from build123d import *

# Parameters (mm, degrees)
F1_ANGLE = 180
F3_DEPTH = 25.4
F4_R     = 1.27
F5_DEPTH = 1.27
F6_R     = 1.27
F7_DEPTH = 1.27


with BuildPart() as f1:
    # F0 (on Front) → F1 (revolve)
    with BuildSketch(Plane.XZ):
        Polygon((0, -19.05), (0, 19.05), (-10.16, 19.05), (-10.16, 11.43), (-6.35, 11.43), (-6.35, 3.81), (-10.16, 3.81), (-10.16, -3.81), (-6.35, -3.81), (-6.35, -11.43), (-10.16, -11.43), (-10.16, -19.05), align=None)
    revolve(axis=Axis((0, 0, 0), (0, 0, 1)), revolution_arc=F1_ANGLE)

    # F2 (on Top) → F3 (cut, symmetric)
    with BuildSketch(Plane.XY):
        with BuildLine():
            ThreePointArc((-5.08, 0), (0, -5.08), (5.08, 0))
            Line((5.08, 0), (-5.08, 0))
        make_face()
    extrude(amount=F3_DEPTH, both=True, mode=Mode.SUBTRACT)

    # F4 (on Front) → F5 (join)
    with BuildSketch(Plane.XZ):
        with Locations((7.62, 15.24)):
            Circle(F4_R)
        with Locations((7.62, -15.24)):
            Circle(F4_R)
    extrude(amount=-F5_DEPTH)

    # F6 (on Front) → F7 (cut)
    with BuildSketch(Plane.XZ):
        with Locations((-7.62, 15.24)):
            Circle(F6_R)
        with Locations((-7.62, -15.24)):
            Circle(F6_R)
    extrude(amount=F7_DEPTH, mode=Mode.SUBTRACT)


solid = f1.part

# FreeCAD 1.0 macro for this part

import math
import FreeCAD as App
import Part
import Sketcher
Q = App.Units.Quantity


def add_polygon(sketch, points):
    """Adds a closed chain of lines whose ends are joined by coincident constraints."""
    first, n = sketch.GeometryCount, len(points)
    for a, b in zip(points, points[1:] + points[:1]):
        sketch.addGeometry(Part.LineSegment(App.Vector(*a, 0), App.Vector(*b, 0)), False)
    for i in range(n):
        sketch.addConstraint(Sketcher.Constraint("Coincident", first + i, 2, first + (i + 1) % n, 1))

doc = App.newDocument("Part")
body = doc.addObject("PartDesign::Body", "Body")

sketch1 = body.newObject("Sketcher::SketchObject", "Sketch")
sketch1.AttachmentSupport = (doc.getObject("XZ_Plane"), [""])
sketch1.MapMode = "FlatFace"
add_polygon(sketch1, [(0, -19.1), (0, 19.1), (-10.2, 19.1), (-10.2, 11.4), (-6.3, 11.4), (-6.3, 3.8), (-10.2, 3.8), (-10.2, -3.8), (-6.3, -3.8), (-6.3, -11.4), (-10.2, -11.4), (-10.2, -19.1)])
sketch1.addConstraint(Sketcher.Constraint("Vertical", 0))
sketch1.addConstraint(Sketcher.Constraint("Horizontal", 1))
sketch1.addConstraint(Sketcher.Constraint("Vertical", 2))
sketch1.addConstraint(Sketcher.Constraint("Horizontal", 3))
sketch1.addConstraint(Sketcher.Constraint("Vertical", 4))
sketch1.addConstraint(Sketcher.Constraint("Horizontal", 5))
sketch1.addConstraint(Sketcher.Constraint("Vertical", 6))
sketch1.addConstraint(Sketcher.Constraint("Horizontal", 7))
sketch1.addConstraint(Sketcher.Constraint("Vertical", 8))
sketch1.addConstraint(Sketcher.Constraint("Horizontal", 9))
sketch1.addConstraint(Sketcher.Constraint("Vertical", 10))
sketch1.addConstraint(Sketcher.Constraint("Horizontal", 11))
sketch1.addConstraint(Sketcher.Constraint("Symmetric", 0, 2, 11, 2, -1, 1))
sketch1.addConstraint(Sketcher.Constraint("Symmetric", 4, 2, 7, 2, -1))
sketch1.addConstraint(Sketcher.Constraint("Symmetric", 2, 2, 9, 2, -1))
sketch1.addConstraint(Sketcher.Constraint("Vertical", 2, 2, 5, 2))
sketch1.addConstraint(Sketcher.Constraint("Equal", 2, 4))
sketch1.addConstraint(Sketcher.Constraint("Equal", 4, 6))
sketch1.addConstraint(Sketcher.Constraint("DistanceX", 1, 2, 1, 1, Q("0.4 in")))
sketch1.addConstraint(Sketcher.Constraint("DistanceY", 0, 1, 0, 2, Q("1.5 in")))
sketch1.addConstraint(Sketcher.Constraint("DistanceX", 3, 1, 3, 2, Q("0.15 in")))
revolution = body.newObject("PartDesign::Revolution", "Revolution")
revolution.Profile = sketch1
revolution.ReferenceAxis = (sketch1, ["V_Axis"])
revolution.Angle = 180

sketch2 = body.newObject("Sketcher::SketchObject", "Sketch001")
sketch2.AttachmentSupport = (doc.getObject("XY_Plane"), [""])
sketch2.MapMode = "FlatFace"
sketch2.addGeometry(Part.ArcOfCircle(Part.Circle(App.Vector(0, 0, 0), App.Vector(0, 0, 1), 5), math.radians(180), math.radians(360)), False)
sketch2.addGeometry(Part.LineSegment(App.Vector(5, 0, 0), App.Vector(-5, 0, 0)), False)
sketch2.addConstraint(Sketcher.Constraint("Coincident", 0, 1, 1, 2))
sketch2.addConstraint(Sketcher.Constraint("Coincident", 1, 1, 0, 2))
sketch2.addConstraint(Sketcher.Constraint("Horizontal", 1))
sketch2.addConstraint(Sketcher.Constraint("Coincident", 0, 3, -1, 1))
sketch2.addConstraint(Sketcher.Constraint("PointOnObject", 0, 1, -1))
sketch2.addConstraint(Sketcher.Constraint("Radius", 0, Q("0.2 in")))
pocket1 = body.newObject("PartDesign::Pocket", "Pocket")
pocket1.Profile = sketch2
pocket1.Length = Q("2 in")
pocket1.Midplane = True

sketch3 = body.newObject("Sketcher::SketchObject", "Sketch002")
sketch3.AttachmentSupport = (doc.getObject("XZ_Plane"), [""])
sketch3.MapMode = "FlatFace"
sketch3.addGeometry(Part.Circle(App.Vector(7.6, 15.2, 0), App.Vector(0, 0, 1), 1.3), False)
sketch3.addGeometry(Part.Circle(App.Vector(7.6, -15.2, 0), App.Vector(0, 0, 1), 1.3), False)
sketch3.addConstraint(Sketcher.Constraint("Equal", 0, 1))
sketch3.addConstraint(Sketcher.Constraint("Symmetric", 0, 3, 1, 3, -1))
sketch3.addConstraint(Sketcher.Constraint("Diameter", 0, Q("0.1 in")))
sketch3.addConstraint(Sketcher.Constraint("DistanceX", -1, 1, 0, 3, Q("0.3 in")))
sketch3.addConstraint(Sketcher.Constraint("DistanceY", -1, 1, 0, 3, Q("0.6 in")))
pad1 = body.newObject("PartDesign::Pad", "Pad")
pad1.Profile = sketch3
pad1.Length = Q("0.05 in")
pad1.Reversed = True

sketch4 = body.newObject("Sketcher::SketchObject", "Sketch003")
sketch4.AttachmentSupport = (doc.getObject("XZ_Plane"), [""])
sketch4.MapMode = "FlatFace"
sketch4.addGeometry(Part.Circle(App.Vector(-7.6, 15.2, 0), App.Vector(0, 0, 1), 1.3), False)
sketch4.addGeometry(Part.Circle(App.Vector(-7.6, -15.2, 0), App.Vector(0, 0, 1), 1.3), False)
sketch4.addConstraint(Sketcher.Constraint("Equal", 0, 1))
sketch4.addConstraint(Sketcher.Constraint("Symmetric", 0, 3, 1, 3, -1))
sketch4.addConstraint(Sketcher.Constraint("Diameter", 0, Q("0.1 in")))
sketch4.addConstraint(Sketcher.Constraint("DistanceX", 0, 3, -1, 1, Q("0.3 in")))
sketch4.addConstraint(Sketcher.Constraint("DistanceY", -1, 1, 0, 3, Q("0.6 in")))
pocket2 = body.newObject("PartDesign::Pocket", "Pocket001")
pocket2.Profile = sketch4
pocket2.Length = Q("0.05 in")
pocket2.Reversed = True

doc.recompute()
